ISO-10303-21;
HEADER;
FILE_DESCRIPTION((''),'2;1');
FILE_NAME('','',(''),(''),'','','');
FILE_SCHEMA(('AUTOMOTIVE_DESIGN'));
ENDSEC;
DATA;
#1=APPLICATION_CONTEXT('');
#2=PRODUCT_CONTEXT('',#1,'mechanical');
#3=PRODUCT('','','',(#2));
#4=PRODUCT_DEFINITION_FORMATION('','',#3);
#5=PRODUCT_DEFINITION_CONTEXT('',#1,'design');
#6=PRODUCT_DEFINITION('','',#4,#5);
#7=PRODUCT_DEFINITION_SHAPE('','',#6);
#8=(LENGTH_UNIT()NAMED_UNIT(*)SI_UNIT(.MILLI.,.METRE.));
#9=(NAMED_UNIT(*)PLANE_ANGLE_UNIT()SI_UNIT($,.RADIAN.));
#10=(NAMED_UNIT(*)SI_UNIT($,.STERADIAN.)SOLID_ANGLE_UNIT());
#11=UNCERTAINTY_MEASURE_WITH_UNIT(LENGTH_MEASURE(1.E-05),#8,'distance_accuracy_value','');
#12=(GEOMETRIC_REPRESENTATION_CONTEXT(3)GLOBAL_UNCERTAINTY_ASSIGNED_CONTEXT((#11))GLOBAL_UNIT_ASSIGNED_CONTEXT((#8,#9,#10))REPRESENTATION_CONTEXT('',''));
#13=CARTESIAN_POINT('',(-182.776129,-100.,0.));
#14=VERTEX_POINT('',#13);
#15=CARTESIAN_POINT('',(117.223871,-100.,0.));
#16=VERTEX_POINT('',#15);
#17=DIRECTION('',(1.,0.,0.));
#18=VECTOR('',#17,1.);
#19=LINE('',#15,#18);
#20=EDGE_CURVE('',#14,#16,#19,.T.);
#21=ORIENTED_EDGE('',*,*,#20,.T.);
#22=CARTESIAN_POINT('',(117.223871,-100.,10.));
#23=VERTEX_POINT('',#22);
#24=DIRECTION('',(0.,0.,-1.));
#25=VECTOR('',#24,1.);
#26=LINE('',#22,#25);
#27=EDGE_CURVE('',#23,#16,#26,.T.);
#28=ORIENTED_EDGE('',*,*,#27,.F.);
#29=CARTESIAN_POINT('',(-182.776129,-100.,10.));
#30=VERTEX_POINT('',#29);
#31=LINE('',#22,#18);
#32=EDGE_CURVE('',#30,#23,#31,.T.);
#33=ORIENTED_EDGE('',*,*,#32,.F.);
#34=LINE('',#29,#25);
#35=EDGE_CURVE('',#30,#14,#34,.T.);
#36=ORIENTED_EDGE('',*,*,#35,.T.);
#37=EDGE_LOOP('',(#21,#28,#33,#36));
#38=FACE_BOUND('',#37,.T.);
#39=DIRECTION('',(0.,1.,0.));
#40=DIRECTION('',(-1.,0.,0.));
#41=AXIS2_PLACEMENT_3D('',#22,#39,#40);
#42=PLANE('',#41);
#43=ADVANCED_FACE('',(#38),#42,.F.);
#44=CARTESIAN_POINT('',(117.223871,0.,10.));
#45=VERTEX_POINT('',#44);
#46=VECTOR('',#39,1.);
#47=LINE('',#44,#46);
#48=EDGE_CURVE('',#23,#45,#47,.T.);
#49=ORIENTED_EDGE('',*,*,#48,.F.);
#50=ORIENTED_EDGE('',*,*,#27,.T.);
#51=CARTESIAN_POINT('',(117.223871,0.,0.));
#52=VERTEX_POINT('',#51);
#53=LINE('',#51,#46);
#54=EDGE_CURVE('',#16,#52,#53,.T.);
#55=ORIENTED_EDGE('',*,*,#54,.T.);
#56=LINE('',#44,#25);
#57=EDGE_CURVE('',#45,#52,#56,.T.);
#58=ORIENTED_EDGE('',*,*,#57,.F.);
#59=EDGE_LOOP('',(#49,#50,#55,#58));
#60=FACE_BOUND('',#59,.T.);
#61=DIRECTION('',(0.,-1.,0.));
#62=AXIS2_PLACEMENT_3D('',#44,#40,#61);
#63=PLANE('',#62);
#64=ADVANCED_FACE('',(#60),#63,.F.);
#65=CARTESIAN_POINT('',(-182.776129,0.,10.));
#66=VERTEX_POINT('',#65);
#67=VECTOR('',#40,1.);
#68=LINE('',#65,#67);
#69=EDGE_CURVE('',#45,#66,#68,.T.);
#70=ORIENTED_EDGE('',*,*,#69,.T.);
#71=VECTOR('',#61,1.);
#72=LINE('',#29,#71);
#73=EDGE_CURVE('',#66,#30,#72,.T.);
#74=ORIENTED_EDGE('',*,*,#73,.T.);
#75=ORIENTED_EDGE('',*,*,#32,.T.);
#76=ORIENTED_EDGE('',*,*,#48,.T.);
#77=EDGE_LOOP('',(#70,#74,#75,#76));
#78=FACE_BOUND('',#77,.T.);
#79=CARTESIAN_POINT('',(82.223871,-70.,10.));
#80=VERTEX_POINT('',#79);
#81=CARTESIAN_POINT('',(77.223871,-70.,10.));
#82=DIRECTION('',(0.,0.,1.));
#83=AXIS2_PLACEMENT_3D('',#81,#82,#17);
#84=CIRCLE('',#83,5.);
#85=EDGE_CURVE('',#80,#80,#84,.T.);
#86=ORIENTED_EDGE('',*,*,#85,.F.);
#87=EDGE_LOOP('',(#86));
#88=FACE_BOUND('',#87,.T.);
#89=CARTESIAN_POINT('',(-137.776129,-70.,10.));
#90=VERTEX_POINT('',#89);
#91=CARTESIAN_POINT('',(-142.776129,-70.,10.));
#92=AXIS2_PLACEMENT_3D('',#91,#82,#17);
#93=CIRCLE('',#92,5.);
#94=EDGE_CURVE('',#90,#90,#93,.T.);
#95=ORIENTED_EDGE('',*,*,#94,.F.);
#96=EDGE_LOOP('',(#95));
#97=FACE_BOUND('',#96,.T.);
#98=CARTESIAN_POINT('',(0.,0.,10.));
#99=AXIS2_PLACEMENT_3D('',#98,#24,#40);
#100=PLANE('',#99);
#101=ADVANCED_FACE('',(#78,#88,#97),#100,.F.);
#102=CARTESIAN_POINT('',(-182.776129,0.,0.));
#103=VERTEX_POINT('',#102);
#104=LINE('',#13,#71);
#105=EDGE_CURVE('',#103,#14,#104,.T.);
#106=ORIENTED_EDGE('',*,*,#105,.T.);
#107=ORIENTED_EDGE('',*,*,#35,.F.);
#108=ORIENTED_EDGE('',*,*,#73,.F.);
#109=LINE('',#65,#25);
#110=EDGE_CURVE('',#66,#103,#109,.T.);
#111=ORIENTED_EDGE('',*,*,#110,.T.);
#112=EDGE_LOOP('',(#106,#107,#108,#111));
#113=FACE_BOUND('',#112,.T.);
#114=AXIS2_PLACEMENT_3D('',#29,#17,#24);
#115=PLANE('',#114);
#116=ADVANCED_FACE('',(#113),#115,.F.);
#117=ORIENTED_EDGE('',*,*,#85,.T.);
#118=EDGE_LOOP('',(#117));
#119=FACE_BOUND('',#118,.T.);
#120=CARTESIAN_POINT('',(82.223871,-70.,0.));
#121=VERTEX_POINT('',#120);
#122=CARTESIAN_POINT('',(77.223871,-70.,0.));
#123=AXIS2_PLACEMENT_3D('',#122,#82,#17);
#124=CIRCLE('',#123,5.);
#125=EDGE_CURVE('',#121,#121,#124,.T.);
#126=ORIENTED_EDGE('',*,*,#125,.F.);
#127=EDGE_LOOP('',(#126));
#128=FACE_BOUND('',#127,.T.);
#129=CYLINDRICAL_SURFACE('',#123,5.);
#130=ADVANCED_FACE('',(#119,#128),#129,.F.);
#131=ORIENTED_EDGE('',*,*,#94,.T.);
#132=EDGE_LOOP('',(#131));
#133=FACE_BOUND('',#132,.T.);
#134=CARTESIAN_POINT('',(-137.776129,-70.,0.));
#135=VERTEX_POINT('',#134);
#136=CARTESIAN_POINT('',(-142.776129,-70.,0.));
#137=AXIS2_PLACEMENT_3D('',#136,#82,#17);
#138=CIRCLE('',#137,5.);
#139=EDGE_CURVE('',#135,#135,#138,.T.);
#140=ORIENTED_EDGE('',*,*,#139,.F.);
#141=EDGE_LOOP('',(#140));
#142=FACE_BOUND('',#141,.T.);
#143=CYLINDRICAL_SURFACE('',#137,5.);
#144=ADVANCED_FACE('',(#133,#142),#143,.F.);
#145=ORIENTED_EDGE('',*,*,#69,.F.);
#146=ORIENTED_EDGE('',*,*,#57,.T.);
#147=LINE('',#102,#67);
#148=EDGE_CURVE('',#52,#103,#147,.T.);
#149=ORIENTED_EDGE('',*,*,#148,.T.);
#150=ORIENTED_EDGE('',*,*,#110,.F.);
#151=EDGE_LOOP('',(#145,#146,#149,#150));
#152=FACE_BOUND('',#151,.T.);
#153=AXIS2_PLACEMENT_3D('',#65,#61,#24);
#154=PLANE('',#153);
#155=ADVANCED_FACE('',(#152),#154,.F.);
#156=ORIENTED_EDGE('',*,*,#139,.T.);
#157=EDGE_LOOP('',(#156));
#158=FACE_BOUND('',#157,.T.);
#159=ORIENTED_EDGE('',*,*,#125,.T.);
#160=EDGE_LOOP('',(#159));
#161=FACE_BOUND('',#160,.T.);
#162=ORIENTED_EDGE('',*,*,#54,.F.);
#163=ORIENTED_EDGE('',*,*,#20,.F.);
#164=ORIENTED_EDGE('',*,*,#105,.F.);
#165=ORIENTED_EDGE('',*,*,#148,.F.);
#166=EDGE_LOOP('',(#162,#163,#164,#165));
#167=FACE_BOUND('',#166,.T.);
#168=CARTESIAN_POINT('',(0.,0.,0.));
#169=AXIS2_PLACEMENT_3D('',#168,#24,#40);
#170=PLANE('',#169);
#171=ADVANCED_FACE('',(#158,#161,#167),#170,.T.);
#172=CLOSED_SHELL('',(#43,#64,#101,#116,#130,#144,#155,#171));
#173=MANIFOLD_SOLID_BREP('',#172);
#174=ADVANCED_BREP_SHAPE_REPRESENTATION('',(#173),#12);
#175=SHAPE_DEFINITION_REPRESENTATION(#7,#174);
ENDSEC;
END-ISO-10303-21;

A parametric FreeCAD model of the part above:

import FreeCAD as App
import Part
import Sketcher
from FreeCAD import Vector
Q = App.Units.Quantity

doc = App.newDocument("Part")
body = doc.addObject("PartDesign::Body", "Body")

# Sketch on XY plane
sketch1 = body.newObject("Sketcher::SketchObject", "Sketch")
sketch1.AttachmentSupport = (doc.getObject("XY_Plane"), [""])
sketch1.MapMode = "FlatFace"
sketch1.addGeometry([
    Part.LineSegment(Vector(-182.776129, 0, 0), Vector(-182.776129, -100, 0)),
    Part.LineSegment(Vector(-182.776129, -100, 0), Vector(117.223871, -100, 0)),
    Part.LineSegment(Vector(117.223871, -100, 0), Vector(117.223871, 0, 0)),
    Part.LineSegment(Vector(117.223871, 0, 0), Vector(-182.776129, 0, 0)),
], False)
sketch1.addConstraint([
    Sketcher.Constraint("Coincident", 0, 2, 1, 1),
    Sketcher.Constraint("Coincident", 1, 2, 2, 1),
    Sketcher.Constraint("Coincident", 2, 2, 3, 1),
    Sketcher.Constraint("Coincident", 3, 2, 0, 1),
    Sketcher.Constraint("Vertical", 0),
    Sketcher.Constraint("Horizontal", 1),
    Sketcher.Constraint("Vertical", 2),
    Sketcher.Constraint("Horizontal", 3),
    Sketcher.Constraint("PointOnObject", 2, 2, -1),
    Sketcher.Constraint("DistanceX", 1, 1, 1, 2, Q("300 mm")),
    Sketcher.Constraint("DistanceY", 0, 2, 0, 1, Q("100 mm")),
    Sketcher.Constraint("DistanceX", 0, 2, -1, 1, Q("182.776129 mm")),
])
pad1 = body.newObject("PartDesign::Pad", "Pad")
pad1.Profile = sketch1
pad1.Length = 10

# Sketch on XY plane
sketch2 = body.newObject("Sketcher::SketchObject", "Sketch001")
sketch2.AttachmentSupport = (doc.getObject("XY_Plane"), [""])
sketch2.MapMode = "FlatFace"
sketch2.AttachmentOffset = App.Placement(Vector(0, 0, 10), App.Rotation())
sketch2.addGeometry([
    Part.Circle(Vector(-142.776129, -70, 0), Vector(0, 0, 1), 5),
    Part.Circle(Vector(77.223871, -70, 0), Vector(0, 0, 1), 5),
], False)
sketch2.addConstraint([
    Sketcher.Constraint("Equal", 0, 1),
    Sketcher.Constraint("Horizontal", 0, 3, 1, 3),
    Sketcher.Constraint("Diameter", 0, Q("10 mm")),
    Sketcher.Constraint("DistanceY", 0, 3, -1, 1, Q("70 mm")),
    Sketcher.Constraint("DistanceX", 0, 3, 1, 3, Q("220 mm")),
    Sketcher.Constraint("DistanceX", 0, 3, -1, 1, Q("142.776129 mm")),
])
pocket1 = body.newObject("PartDesign::Pocket", "Pocket")
pocket1.Profile = sketch2
pocket1.Length = 10

doc.recompute()
